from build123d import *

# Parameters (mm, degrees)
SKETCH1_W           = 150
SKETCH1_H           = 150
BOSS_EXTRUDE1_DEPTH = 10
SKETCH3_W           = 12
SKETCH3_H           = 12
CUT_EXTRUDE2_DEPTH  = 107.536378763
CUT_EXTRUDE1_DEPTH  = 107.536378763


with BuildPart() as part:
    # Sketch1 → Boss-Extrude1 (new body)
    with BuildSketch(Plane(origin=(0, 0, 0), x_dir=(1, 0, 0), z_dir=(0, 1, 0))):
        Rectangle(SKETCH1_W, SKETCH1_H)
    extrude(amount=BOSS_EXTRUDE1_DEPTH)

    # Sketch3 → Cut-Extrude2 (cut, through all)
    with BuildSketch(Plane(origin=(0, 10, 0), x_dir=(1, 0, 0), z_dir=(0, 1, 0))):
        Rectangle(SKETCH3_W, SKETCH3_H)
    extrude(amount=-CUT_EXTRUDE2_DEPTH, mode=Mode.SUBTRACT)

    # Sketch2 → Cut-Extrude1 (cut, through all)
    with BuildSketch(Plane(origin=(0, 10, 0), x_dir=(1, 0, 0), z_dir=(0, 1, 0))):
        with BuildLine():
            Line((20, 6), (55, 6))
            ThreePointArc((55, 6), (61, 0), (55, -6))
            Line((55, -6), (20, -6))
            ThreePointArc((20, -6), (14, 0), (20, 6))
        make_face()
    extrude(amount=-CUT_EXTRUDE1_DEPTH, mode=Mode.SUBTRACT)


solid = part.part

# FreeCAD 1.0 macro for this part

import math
import FreeCAD as App
import Part
import Sketcher


def add_polygon(sketch, points):
    """Adds a closed chain of lines whose ends are joined by coincident constraints."""
    first, n = sketch.GeometryCount, len(points)
    for a, b in zip(points, points[1:] + points[:1]):
        sketch.addGeometry(Part.LineSegment(App.Vector(*a, 0), App.Vector(*b, 0)), False)
    for i in range(n):
        sketch.addConstraint(Sketcher.Constraint("Coincident", first + i, 2, first + (i + 1) % n, 1))

doc = App.newDocument("Part")
body = doc.addObject("PartDesign::Body", "Body")

# Sketch on XZ plane
sketch1 = doc.addObject("Sketcher::SketchObject", "Sketch")
body.addObject(sketch1)
sketch1.AttachmentSupport = (doc.XZ_Plane, [""])
sketch1.MapMode = "FlatFace"
add_polygon(sketch1, [(-75, -75), (-75, 75), (75, 75), (75, -75)])  # lines 0-3
sketch1.addConstraint([
    Sketcher.Constraint("Vertical", 0),
    Sketcher.Constraint("Horizontal", 1),
    Sketcher.Constraint("Vertical", 2),
    Sketcher.Constraint("Horizontal", 3),
    Sketcher.Constraint("Symmetric", 0, 2, 2, 2, -1, 1),
    Sketcher.Constraint("Equal", 3, 0),
    Sketcher.Constraint("DistanceX", 1, 1, 1, 2, 150.0),
])
pad1 = doc.addObject("PartDesign::Pad", "Pad")
body.addObject(pad1)
pad1.Profile = sketch1
pad1.Length = 10
pad1.Reversed = True

# Sketch on XZ plane
sketch2 = doc.addObject("Sketcher::SketchObject", "Sketch001")
body.addObject(sketch2)
sketch2.AttachmentSupport = (doc.XZ_Plane, [""])
sketch2.MapMode = "FlatFace"
sketch2.AttachmentOffset = App.Placement(App.Vector(0, 0, -10), App.Rotation())
add_polygon(sketch2, [(-6, -6), (-6, 6), (6, 6), (6, -6)])  # lines 0-3
sketch2.addConstraint([
    Sketcher.Constraint("Vertical", 0),
    Sketcher.Constraint("Horizontal", 1),
    Sketcher.Constraint("Vertical", 2),
    Sketcher.Constraint("Horizontal", 3),
    Sketcher.Constraint("Symmetric", 0, 2, 2, 2, -1, 1),
    Sketcher.Constraint("Equal", 3, 0),
    Sketcher.Constraint("DistanceX", 1, 1, 1, 2, 12.0),
])
pocket1 = doc.addObject("PartDesign::Pocket", "Pocket")
body.addObject(pocket1)
pocket1.Profile = sketch2
pocket1.Type = "ThroughAll"
pocket1.Reversed = True

# Sketch on XZ plane
sketch3 = doc.addObject("Sketcher::SketchObject", "Sketch002")
body.addObject(sketch3)
sketch3.AttachmentSupport = (doc.XZ_Plane, [""])
sketch3.MapMode = "FlatFace"
sketch3.AttachmentOffset = App.Placement(App.Vector(0, 0, -10), App.Rotation())
sketch3.addGeometry([
    Part.LineSegment(App.Vector(55, -6, 0), App.Vector(20, -6, 0)),
    Part.ArcOfCircle(Part.Circle(App.Vector(20, 0, 0), App.Vector(0, 0, 1), 6), math.radians(90), math.radians(270)),
    Part.LineSegment(App.Vector(20, 6, 0), App.Vector(55, 6, 0)),
    Part.ArcOfCircle(Part.Circle(App.Vector(55, 0, 0), App.Vector(0, 0, 1), 6), math.radians(-90), math.radians(90)),
], False)
sketch3.addConstraint([
    Sketcher.Constraint("Tangent", 0, 2, 1, 2),
    Sketcher.Constraint("Tangent", 1, 1, 2, 1),
    Sketcher.Constraint("Tangent", 2, 2, 3, 2),
    Sketcher.Constraint("Tangent", 3, 1, 0, 1),
    Sketcher.Constraint("Horizontal", 0),
    Sketcher.Constraint("Horizontal", 2),
    Sketcher.Constraint("PointOnObject", 1, 3, -1),
    Sketcher.Constraint("Radius", 1, 6.0),
    Sketcher.Constraint("DistanceX", 0, 2, 0, 1, 35.0),
    Sketcher.Constraint("DistanceX", -1, 1, 1, 3, 20.0),
])
pocket2 = doc.addObject("PartDesign::Pocket", "Pocket001")
body.addObject(pocket2)
pocket2.Profile = sketch3
pocket2.Type = "ThroughAll"
pocket2.Reversed = True

doc.recompute()
